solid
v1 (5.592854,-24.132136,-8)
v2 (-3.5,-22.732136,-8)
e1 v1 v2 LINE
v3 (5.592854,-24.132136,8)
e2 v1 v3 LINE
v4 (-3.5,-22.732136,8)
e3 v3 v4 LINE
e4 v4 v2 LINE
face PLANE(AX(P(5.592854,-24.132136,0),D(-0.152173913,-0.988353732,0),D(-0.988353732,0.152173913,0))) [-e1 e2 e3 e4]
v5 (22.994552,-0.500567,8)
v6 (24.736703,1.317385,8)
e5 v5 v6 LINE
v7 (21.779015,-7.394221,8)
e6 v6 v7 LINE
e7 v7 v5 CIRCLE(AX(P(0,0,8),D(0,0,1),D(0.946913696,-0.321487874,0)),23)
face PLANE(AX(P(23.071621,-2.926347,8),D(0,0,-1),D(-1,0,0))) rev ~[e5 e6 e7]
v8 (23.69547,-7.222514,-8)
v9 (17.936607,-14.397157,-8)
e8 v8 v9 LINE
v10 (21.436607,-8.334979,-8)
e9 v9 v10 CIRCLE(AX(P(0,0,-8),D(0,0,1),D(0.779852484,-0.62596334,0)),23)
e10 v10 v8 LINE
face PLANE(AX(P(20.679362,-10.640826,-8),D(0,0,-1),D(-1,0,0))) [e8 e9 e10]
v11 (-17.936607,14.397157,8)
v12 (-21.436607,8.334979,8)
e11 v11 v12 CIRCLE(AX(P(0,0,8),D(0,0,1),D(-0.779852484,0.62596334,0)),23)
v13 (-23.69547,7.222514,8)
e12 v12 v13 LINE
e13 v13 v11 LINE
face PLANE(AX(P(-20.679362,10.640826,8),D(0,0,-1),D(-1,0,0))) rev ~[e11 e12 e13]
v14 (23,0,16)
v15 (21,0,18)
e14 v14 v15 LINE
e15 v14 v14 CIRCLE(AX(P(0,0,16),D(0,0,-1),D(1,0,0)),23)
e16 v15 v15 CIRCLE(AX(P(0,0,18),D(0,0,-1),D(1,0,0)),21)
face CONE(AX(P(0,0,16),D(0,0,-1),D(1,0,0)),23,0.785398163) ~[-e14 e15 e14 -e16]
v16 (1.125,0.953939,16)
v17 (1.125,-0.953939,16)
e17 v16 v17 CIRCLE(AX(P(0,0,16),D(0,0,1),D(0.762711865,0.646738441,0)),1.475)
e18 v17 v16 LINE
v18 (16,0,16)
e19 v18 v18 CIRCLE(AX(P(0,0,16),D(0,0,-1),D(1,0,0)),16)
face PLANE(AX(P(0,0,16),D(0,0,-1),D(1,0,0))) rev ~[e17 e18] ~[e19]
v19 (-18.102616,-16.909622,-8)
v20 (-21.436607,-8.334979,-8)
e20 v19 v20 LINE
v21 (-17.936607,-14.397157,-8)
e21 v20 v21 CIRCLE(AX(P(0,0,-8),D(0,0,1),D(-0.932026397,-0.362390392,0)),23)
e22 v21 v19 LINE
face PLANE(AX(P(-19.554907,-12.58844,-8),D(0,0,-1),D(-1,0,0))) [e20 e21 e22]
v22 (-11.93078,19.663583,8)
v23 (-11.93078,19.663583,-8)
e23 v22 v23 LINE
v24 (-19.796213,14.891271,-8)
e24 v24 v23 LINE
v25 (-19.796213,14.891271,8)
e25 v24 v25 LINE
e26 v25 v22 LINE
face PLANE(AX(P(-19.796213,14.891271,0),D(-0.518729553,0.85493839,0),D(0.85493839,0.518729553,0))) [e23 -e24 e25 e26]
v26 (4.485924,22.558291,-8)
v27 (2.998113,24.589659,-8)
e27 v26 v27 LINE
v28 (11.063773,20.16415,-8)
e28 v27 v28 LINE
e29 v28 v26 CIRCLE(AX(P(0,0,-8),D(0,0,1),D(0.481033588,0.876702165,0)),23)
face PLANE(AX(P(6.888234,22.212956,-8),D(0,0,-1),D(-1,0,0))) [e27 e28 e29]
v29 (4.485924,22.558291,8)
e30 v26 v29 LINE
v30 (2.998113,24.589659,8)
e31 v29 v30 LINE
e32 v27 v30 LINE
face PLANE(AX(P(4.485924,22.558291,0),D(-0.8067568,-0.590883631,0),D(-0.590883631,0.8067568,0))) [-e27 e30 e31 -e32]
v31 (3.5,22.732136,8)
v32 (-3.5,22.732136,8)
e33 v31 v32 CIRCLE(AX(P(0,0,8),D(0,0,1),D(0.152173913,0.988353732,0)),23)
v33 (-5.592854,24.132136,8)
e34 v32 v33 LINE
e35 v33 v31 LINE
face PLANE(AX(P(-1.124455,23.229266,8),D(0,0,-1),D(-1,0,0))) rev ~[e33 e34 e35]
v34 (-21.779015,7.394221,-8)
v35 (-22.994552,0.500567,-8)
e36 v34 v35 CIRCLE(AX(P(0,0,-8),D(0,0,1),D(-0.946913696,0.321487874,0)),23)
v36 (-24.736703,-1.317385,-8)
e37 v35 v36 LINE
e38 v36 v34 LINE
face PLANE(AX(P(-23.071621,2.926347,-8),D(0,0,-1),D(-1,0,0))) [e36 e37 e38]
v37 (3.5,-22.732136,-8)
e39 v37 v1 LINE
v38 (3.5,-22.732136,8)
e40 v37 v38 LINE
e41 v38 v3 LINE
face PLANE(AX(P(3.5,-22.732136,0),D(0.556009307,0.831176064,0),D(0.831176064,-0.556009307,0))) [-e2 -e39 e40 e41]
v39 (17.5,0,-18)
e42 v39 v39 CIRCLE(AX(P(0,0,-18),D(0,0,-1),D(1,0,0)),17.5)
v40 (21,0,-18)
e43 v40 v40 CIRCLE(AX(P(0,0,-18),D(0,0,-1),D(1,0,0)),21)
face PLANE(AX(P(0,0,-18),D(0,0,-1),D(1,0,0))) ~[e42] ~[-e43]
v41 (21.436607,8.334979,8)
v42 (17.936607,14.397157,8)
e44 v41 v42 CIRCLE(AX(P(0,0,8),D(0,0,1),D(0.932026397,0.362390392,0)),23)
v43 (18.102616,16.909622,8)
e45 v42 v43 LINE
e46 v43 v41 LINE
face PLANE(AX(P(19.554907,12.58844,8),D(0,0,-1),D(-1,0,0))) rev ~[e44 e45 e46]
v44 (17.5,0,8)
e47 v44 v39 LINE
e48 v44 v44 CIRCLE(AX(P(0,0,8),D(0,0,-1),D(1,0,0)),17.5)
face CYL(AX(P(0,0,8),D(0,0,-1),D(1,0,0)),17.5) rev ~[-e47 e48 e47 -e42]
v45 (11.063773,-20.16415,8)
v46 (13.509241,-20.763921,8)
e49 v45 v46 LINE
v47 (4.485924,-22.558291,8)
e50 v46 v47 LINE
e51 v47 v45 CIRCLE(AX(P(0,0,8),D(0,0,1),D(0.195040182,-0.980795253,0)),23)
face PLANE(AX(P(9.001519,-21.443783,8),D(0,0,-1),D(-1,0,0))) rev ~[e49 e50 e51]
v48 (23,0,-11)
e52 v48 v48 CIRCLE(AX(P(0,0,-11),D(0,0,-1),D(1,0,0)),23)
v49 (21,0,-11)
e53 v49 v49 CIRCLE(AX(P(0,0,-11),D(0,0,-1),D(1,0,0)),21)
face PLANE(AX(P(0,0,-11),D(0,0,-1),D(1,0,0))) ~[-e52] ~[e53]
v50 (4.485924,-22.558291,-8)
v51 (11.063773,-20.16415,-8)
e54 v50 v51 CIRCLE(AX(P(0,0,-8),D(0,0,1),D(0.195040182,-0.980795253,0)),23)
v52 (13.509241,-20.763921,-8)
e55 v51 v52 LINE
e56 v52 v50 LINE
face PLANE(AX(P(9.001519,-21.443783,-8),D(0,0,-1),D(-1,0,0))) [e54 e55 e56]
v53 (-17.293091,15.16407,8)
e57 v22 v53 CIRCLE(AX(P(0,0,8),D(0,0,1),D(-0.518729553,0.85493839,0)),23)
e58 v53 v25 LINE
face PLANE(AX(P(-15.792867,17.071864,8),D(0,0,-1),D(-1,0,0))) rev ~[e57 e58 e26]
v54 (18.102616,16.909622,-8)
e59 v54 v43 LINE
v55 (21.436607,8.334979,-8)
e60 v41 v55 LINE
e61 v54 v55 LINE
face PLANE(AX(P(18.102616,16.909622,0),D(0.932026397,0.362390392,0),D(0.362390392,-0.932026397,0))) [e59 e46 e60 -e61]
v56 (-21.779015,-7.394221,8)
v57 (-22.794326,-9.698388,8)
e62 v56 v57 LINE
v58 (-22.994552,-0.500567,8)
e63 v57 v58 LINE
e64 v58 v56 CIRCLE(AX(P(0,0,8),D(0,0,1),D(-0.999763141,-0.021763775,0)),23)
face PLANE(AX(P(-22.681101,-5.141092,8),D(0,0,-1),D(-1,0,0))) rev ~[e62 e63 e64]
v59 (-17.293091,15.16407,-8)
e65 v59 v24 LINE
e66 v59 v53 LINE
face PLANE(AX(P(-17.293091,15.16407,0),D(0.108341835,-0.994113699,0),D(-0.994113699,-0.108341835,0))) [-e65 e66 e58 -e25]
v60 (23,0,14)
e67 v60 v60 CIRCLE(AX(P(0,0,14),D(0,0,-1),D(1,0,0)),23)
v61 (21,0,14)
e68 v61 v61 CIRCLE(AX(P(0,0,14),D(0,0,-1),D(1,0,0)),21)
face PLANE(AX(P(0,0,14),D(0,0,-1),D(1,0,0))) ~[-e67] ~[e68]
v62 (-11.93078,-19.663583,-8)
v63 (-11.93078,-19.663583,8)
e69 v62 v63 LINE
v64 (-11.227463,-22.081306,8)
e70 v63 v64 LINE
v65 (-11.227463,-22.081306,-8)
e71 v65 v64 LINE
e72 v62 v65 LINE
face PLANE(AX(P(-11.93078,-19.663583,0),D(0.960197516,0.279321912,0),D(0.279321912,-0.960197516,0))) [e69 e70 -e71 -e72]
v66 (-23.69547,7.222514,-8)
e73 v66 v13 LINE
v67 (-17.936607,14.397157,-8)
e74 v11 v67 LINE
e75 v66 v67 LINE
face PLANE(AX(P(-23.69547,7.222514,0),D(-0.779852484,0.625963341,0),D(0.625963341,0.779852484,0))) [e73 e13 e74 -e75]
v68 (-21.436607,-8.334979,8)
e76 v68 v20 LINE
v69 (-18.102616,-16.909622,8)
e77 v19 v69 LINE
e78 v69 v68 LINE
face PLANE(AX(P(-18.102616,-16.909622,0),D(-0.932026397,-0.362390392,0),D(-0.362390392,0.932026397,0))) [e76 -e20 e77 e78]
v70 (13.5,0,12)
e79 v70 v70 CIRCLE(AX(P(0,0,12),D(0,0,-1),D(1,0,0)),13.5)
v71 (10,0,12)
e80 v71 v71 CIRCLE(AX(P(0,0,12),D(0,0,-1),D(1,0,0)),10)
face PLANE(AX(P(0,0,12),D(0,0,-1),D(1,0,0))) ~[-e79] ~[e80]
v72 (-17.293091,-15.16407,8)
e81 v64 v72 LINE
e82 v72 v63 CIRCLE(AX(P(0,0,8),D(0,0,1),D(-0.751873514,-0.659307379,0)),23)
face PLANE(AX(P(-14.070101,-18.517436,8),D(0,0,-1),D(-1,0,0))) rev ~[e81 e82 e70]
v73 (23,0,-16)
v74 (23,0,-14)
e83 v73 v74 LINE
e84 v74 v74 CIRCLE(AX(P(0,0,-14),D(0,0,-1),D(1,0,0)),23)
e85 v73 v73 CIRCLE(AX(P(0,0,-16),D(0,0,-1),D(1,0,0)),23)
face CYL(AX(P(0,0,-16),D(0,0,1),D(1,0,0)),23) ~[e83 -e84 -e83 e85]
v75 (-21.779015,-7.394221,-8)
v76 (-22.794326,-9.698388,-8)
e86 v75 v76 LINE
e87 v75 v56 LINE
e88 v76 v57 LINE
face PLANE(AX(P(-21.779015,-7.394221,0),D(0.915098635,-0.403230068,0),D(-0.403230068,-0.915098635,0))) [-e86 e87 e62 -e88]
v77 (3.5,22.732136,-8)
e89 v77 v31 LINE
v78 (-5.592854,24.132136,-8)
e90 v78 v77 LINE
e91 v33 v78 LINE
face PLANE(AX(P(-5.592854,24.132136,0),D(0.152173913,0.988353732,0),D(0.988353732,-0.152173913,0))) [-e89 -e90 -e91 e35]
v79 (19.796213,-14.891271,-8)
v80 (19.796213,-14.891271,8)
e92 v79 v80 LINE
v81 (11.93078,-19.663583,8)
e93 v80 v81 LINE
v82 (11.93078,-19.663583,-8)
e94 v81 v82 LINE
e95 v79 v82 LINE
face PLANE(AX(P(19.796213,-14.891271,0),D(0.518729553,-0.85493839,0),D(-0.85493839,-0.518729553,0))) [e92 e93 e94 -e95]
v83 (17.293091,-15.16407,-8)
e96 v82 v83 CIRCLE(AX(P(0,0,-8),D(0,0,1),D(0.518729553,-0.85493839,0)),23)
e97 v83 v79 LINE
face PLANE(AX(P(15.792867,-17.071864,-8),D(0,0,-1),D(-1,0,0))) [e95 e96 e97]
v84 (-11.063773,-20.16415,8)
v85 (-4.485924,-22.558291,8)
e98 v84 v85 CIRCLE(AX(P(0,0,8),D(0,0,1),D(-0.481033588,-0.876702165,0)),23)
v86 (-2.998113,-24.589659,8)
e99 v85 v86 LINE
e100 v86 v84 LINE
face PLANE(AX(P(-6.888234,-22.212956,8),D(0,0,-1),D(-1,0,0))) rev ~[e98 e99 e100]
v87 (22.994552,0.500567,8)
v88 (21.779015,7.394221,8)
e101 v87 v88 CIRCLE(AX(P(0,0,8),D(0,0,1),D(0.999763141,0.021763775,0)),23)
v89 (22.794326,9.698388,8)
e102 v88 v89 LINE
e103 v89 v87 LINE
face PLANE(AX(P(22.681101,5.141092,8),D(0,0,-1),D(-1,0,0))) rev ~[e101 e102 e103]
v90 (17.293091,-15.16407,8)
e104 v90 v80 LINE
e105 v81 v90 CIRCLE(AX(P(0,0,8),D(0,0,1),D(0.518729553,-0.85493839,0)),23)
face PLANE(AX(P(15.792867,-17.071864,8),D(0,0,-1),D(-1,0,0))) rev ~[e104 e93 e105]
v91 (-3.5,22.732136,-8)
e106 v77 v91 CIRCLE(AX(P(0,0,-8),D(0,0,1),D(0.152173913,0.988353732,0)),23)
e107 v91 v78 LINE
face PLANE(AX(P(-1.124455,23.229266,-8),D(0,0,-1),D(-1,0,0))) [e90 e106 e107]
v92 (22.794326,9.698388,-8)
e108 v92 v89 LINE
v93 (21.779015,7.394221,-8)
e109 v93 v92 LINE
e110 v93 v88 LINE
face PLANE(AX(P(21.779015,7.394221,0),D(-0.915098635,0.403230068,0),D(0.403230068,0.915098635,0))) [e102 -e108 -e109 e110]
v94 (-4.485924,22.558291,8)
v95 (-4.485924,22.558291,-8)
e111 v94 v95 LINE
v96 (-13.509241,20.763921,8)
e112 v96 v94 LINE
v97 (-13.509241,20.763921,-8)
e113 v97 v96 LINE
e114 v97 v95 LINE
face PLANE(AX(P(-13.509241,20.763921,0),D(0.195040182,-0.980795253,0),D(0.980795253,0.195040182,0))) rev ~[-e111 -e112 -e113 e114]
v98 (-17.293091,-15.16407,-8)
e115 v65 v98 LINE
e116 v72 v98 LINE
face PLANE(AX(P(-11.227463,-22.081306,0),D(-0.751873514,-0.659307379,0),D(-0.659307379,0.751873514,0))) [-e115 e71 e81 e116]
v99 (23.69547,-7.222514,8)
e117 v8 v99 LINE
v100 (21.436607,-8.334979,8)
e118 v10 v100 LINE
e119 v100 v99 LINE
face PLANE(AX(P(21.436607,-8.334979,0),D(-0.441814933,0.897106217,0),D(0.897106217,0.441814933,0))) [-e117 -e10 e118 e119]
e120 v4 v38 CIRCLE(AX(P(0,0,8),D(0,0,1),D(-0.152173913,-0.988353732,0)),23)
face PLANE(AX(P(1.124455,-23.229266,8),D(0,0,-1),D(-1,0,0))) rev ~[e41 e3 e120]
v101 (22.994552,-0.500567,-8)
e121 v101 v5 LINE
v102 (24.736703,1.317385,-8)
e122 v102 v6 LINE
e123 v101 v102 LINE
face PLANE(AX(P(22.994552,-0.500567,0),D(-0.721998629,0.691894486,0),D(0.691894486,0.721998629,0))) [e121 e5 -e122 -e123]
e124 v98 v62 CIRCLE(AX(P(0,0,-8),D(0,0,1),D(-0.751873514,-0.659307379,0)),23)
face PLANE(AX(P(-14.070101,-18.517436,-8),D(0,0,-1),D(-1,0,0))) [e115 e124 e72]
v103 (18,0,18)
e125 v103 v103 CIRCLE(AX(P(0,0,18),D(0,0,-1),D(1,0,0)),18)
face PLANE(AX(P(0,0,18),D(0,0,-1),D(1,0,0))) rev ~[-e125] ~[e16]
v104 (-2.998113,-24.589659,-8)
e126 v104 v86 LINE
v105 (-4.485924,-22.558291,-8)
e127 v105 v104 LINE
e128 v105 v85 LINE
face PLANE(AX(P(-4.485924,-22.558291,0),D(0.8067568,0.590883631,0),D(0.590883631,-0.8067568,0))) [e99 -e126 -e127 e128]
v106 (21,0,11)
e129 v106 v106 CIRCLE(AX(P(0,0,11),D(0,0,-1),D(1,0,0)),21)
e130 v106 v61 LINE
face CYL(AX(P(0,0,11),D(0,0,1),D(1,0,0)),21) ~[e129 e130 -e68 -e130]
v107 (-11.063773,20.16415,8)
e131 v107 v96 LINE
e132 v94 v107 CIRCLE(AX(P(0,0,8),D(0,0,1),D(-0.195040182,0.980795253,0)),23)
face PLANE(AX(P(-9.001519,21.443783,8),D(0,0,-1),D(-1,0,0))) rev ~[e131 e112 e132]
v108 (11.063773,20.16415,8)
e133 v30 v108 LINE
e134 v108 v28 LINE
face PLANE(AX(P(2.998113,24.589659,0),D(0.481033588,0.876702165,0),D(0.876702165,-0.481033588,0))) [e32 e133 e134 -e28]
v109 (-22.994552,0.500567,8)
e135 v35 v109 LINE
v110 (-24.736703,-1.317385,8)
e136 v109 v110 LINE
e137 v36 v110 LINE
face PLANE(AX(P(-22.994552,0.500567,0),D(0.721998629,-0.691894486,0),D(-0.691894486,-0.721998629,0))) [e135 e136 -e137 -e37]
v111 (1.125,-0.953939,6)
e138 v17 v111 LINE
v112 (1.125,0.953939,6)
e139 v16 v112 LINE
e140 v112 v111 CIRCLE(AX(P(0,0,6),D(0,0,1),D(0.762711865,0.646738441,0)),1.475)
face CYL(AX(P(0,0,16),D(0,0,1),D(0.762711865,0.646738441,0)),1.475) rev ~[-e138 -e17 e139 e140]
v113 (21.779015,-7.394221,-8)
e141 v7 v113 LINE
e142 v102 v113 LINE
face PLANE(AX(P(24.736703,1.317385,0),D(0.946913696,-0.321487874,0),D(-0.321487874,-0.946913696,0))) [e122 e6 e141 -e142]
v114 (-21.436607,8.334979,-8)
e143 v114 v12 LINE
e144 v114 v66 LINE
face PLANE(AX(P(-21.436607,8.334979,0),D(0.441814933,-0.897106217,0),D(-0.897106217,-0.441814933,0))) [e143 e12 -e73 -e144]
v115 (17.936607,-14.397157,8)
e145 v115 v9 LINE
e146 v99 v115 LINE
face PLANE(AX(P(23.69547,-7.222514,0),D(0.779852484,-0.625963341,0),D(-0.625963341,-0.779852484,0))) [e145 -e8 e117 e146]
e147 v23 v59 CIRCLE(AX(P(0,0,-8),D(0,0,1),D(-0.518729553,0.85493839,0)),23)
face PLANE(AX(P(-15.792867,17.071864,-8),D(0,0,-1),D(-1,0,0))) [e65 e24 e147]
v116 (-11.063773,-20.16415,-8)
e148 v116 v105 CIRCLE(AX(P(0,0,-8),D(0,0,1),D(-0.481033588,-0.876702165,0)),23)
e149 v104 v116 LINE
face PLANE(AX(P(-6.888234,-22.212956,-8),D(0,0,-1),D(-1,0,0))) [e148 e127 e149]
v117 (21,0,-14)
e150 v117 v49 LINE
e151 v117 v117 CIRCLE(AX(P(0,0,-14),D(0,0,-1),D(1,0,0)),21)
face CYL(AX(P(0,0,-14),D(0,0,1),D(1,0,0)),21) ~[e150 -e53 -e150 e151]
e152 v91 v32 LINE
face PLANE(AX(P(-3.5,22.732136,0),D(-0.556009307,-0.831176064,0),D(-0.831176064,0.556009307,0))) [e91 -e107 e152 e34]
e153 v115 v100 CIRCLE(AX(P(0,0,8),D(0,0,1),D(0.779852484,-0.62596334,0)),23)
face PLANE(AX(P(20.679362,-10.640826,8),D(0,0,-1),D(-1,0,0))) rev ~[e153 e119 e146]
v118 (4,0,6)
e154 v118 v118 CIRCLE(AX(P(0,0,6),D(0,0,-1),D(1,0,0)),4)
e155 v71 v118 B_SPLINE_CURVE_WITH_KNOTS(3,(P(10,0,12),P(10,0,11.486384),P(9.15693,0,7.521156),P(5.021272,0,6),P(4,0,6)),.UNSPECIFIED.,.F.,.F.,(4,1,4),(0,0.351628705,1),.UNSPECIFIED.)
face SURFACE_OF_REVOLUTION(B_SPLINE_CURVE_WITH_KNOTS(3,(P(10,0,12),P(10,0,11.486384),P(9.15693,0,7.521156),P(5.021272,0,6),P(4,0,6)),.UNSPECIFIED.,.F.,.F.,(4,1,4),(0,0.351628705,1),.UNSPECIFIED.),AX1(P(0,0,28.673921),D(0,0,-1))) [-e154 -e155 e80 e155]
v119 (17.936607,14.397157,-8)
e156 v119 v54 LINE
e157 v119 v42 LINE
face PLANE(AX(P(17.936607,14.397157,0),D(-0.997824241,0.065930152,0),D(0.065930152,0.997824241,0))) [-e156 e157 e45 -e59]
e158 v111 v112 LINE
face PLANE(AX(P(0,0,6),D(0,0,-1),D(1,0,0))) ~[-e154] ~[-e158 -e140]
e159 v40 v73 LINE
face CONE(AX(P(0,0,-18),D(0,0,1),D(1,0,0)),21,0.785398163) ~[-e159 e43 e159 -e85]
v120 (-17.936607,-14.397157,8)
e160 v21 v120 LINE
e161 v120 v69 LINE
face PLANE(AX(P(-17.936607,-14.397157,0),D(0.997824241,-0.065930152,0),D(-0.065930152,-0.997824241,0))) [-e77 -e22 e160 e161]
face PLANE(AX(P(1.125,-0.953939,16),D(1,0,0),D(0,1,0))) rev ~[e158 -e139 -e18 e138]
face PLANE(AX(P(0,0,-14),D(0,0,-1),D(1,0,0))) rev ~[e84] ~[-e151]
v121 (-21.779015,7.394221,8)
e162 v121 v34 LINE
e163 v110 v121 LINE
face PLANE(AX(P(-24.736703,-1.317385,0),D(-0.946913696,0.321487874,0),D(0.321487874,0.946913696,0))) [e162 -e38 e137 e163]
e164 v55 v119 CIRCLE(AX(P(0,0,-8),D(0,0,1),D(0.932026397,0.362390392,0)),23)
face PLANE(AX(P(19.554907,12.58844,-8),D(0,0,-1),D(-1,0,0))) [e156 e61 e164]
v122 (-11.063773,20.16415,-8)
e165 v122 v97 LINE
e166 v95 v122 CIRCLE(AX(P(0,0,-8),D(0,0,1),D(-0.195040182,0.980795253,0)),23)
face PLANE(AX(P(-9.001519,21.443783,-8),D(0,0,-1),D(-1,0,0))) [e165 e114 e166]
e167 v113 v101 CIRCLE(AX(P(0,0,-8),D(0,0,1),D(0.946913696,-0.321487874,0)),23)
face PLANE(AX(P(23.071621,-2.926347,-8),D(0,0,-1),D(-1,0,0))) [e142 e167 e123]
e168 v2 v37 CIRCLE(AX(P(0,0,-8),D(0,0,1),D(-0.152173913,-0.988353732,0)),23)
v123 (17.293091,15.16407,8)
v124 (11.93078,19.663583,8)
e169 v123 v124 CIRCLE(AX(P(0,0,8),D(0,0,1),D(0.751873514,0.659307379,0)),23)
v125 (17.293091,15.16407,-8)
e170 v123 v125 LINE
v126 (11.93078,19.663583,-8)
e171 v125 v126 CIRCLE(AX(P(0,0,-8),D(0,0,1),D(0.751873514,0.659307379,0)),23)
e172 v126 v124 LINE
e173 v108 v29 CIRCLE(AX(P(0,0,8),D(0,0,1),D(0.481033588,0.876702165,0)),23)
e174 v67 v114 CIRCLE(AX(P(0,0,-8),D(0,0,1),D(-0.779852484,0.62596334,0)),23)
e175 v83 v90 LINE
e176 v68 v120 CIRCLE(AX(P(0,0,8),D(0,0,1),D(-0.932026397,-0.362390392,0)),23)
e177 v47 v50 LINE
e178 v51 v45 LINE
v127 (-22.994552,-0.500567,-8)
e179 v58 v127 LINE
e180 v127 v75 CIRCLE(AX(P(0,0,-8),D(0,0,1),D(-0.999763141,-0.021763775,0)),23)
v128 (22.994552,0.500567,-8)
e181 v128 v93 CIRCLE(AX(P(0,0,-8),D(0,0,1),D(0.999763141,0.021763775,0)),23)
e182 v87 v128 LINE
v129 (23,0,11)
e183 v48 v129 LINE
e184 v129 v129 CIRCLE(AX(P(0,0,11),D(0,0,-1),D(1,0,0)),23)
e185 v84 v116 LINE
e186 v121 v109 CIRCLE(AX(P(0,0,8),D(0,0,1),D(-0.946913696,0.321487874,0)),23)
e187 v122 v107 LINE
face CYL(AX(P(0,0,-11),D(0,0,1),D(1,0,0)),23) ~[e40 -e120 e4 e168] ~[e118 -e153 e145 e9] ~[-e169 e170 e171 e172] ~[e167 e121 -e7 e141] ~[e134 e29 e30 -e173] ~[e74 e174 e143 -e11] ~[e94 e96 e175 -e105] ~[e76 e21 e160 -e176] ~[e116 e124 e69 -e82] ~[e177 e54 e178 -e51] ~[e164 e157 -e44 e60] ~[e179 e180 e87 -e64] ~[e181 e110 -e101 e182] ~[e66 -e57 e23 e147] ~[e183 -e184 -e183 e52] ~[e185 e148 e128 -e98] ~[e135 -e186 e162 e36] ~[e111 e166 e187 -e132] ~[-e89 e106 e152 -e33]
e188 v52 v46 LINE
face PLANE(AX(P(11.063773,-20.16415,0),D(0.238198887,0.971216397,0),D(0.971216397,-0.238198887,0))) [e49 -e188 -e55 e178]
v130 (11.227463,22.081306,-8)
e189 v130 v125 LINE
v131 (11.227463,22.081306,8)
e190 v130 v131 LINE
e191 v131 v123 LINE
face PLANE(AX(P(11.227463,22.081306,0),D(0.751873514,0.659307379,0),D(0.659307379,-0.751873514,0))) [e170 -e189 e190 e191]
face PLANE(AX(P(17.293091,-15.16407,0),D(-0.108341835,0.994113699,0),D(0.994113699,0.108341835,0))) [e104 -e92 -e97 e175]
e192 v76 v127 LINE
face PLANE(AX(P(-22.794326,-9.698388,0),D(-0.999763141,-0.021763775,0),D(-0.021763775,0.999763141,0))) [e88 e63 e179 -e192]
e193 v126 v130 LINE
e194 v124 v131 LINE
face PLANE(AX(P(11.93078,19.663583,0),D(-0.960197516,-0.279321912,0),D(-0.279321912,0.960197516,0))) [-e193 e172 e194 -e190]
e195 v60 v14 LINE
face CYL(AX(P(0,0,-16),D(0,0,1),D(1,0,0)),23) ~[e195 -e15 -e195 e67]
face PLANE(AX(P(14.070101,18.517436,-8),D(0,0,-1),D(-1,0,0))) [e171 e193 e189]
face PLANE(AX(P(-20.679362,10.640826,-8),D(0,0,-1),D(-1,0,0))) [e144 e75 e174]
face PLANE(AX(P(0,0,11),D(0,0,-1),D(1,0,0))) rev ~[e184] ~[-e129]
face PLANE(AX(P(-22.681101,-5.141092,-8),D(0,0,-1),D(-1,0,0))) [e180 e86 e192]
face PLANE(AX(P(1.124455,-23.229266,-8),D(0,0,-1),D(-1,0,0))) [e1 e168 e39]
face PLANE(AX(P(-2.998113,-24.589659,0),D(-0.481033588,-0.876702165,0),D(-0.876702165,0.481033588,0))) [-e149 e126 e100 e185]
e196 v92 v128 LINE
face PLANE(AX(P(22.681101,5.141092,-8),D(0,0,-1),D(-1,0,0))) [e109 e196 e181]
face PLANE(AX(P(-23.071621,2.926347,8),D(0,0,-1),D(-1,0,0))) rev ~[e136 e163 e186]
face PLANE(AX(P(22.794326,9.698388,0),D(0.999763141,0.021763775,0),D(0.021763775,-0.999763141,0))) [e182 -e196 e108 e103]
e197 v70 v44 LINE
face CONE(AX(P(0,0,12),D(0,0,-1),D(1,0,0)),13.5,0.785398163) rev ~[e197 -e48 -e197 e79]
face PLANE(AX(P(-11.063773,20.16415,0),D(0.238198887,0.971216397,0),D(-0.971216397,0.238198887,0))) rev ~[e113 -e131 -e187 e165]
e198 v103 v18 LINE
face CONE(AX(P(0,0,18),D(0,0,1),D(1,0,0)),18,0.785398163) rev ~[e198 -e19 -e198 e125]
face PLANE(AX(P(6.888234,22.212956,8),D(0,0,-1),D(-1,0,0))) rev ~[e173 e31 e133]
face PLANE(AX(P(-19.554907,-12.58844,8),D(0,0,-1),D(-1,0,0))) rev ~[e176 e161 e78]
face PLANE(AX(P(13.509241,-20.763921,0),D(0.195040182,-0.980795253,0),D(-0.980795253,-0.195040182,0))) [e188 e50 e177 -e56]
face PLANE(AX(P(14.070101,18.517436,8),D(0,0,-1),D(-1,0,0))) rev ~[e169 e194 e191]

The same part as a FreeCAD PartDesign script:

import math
import FreeCAD as App
import Part
import Sketcher
Q = App.Units.Quantity

doc = App.newDocument("Part")
body = doc.addObject("PartDesign::Body", "Body")

# Sketch on YZ plane
sketch1 = body.newObject("Sketcher::SketchObject", "Sketch")
sketch1.AttachmentSupport = (doc.getObject("YZ_Plane"), [""])
sketch1.MapMode = "FlatFace"
sketch1.addGeometry([
    Part.LineSegment(App.Vector(23, 16, 0), App.Vector(21, 18, 0)),  # 0
    Part.LineSegment(App.Vector(21, 18, 0), App.Vector(18, 18, 0)),  # 1
    Part.LineSegment(App.Vector(18, 18, 0), App.Vector(16, 16, 0)),  # 2
    Part.LineSegment(App.Vector(16, 16, 0), App.Vector(0, 16, 0)),  # 3
    Part.LineSegment(App.Vector(0, 16, 0), App.Vector(0, 6, 0)),  # 4
    Part.LineSegment(App.Vector(0, 6, 0), App.Vector(4, 6, 0)),  # 5
    Part.BSplineCurve([App.Vector(10, 12, 0), App.Vector(10, 11.486384, 0), App.Vector(9.15693, 7.521156, 0), App.Vector(5.021272, 6, 0), App.Vector(4, 6, 0)], [4, 1, 4], [0, 0.351628705, 1], False, 3, [1, 1, 1, 1, 1], False),  # 6
    Part.LineSegment(App.Vector(10, 12, 0), App.Vector(13.5, 12, 0)),  # 7
    Part.LineSegment(App.Vector(13.5, 12, 0), App.Vector(17.5, 8, 0)),  # 8
    Part.LineSegment(App.Vector(17.5, 8, 0), App.Vector(17.5, -18, 0)),  # 9
    Part.LineSegment(App.Vector(17.5, -18, 0), App.Vector(21, -18, 0)),  # 10
    Part.LineSegment(App.Vector(21, -18, 0), App.Vector(23, -16, 0)),  # 11
    Part.LineSegment(App.Vector(23, -16, 0), App.Vector(23, 16, 0)),  # 12
], False)
sketch1.addConstraint([
    Sketcher.Constraint("Block", 6),
    Sketcher.Constraint("Coincident", 0, 2, 1, 1),
    Sketcher.Constraint("Coincident", 1, 2, 2, 1),
    Sketcher.Constraint("Coincident", 2, 2, 3, 1),
    Sketcher.Constraint("Coincident", 3, 2, 4, 1),
    Sketcher.Constraint("Coincident", 4, 2, 5, 1),
    Sketcher.Constraint("Coincident", 5, 2, 6, 2),
    Sketcher.Constraint("Coincident", 6, 1, 7, 1),
    Sketcher.Constraint("Coincident", 7, 2, 8, 1),
    Sketcher.Constraint("Coincident", 8, 2, 9, 1),
    Sketcher.Constraint("Coincident", 9, 2, 10, 1),
    Sketcher.Constraint("Coincident", 10, 2, 11, 1),
    Sketcher.Constraint("Coincident", 11, 2, 12, 1),
    Sketcher.Constraint("Coincident", 12, 2, 0, 1),
    Sketcher.Constraint("Horizontal", 1),
    Sketcher.Constraint("Horizontal", 3),
    Sketcher.Constraint("Vertical", 4),
    Sketcher.Constraint("Horizontal", 5),
    Sketcher.Constraint("Horizontal", 7),
    Sketcher.Constraint("Vertical", 9),
    Sketcher.Constraint("Horizontal", 10),
    Sketcher.Constraint("Vertical", 12),
    Sketcher.Constraint("Symmetric", 0, 2, 10, 2, -1),
    Sketcher.Constraint("PointOnObject", 3, 2, -2),
    Sketcher.Constraint("Perpendicular", 0, 2),
    Sketcher.Constraint("Perpendicular", 2, 8),
    Sketcher.Constraint("Perpendicular", 8, 11),
    Sketcher.Constraint("Horizontal", 3, 2, 12, 2),
    Sketcher.Constraint("Equal", 7, 10),
    Sketcher.Constraint("Equal", 0, 2),
    Sketcher.Constraint("DistanceX", 1, 2, 1, 1, Q("3 mm")),
    Sketcher.Constraint("DistanceX", 3, 2, 3, 1, Q("16 mm")),
    Sketcher.Constraint("DistanceY", 4, 2, 4, 1, Q("10 mm")),
    Sketcher.Constraint("DistanceY", 9, 2, 9, 1, Q("26 mm")),
    Sketcher.Constraint("DistanceX", -1, 1, 0, 2, Q("21 mm")),
])
revolution = body.newObject("PartDesign::Revolution", "Revolution")
revolution.Profile = sketch1
revolution.ReferenceAxis = (sketch1, ["V_Axis"])
revolution.Angle = 360

# Sketch on XY plane
sketch2 = body.newObject("Sketcher::SketchObject", "Sketch001")
sketch2.AttachmentSupport = (doc.getObject("XY_Plane"), [""])
sketch2.MapMode = "FlatFace"
sketch2.AttachmentOffset = App.Placement(App.Vector(0, 0, 16), App.Rotation())
sketch2.addGeometry([
    Part.LineSegment(App.Vector(1.1, -1, 0), App.Vector(1.1, 1, 0)),
    Part.ArcOfCircle(Part.Circle(App.Vector(0, 0, 0), App.Vector(0, 0, 1), 1.5), math.radians(40), math.radians(320)),
], False)
sketch2.addConstraint([
    Sketcher.Constraint("Coincident", 0, 1, 1, 2),
    Sketcher.Constraint("Coincident", 1, 1, 0, 2),
    Sketcher.Constraint("Vertical", 0),
    Sketcher.Constraint("Coincident", 1, 3, -1, 1),
    Sketcher.Constraint("Radius", 1, Q("1.475 mm")),
    Sketcher.Constraint("DistanceX", -1, 1, 0, 1, Q("1.125 mm")),
])
pocket1 = body.newObject("PartDesign::Pocket", "Pocket")
pocket1.Profile = sketch2
pocket1.Type = "ThroughAll"

# Sketch on YZ plane
sketch3 = body.newObject("Sketcher::SketchObject", "Sketch002")
sketch3.AttachmentSupport = (doc.getObject("YZ_Plane"), [""])
sketch3.MapMode = "FlatFace"
sketch3.addGeometry([
    Part.LineSegment(App.Vector(23, -16, 0), App.Vector(21, -18, 0)),  # 0
    Part.LineSegment(App.Vector(21, -18, 0), App.Vector(24.3, -18, 0)),  # 1
    Part.LineSegment(App.Vector(24.3, -18, 0), App.Vector(24.3, 18, 0)),  # 2
    Part.LineSegment(App.Vector(24.3, 18, 0), App.Vector(21, 18, 0)),  # 3
    Part.LineSegment(App.Vector(21, 18, 0), App.Vector(23, 16, 0)),  # 4
    Part.LineSegment(App.Vector(23, 16, 0), App.Vector(23, 14, 0)),  # 5
    Part.LineSegment(App.Vector(23, 14, 0), App.Vector(21, 14, 0)),  # 6
    Part.LineSegment(App.Vector(21, 14, 0), App.Vector(21, 11, 0)),  # 7
    Part.LineSegment(App.Vector(21, 11, 0), App.Vector(23, 11, 0)),  # 8
    Part.LineSegment(App.Vector(23, 11, 0), App.Vector(23, -11, 0)),  # 9
    Part.LineSegment(App.Vector(23, -11, 0), App.Vector(21, -11, 0)),  # 10
    Part.LineSegment(App.Vector(21, -11, 0), App.Vector(21, -14, 0)),  # 11
    Part.LineSegment(App.Vector(21, -14, 0), App.Vector(23, -14, 0)),  # 12
    Part.LineSegment(App.Vector(23, -14, 0), App.Vector(23, -16, 0)),  # 13
], False)
sketch3.addConstraint([
    Sketcher.Constraint("Coincident", 0, 2, 1, 1),
    Sketcher.Constraint("Coincident", 1, 2, 2, 1),
    Sketcher.Constraint("Coincident", 2, 2, 3, 1),
    Sketcher.Constraint("Coincident", 3, 2, 4, 1),
    Sketcher.Constraint("Coincident", 4, 2, 5, 1),
    Sketcher.Constraint("Coincident", 5, 2, 6, 1),
    Sketcher.Constraint("Coincident", 6, 2, 7, 1),
    Sketcher.Constraint("Coincident", 7, 2, 8, 1),
    Sketcher.Constraint("Coincident", 8, 2, 9, 1),
    Sketcher.Constraint("Coincident", 9, 2, 10, 1),
    Sketcher.Constraint("Coincident", 10, 2, 11, 1),
    Sketcher.Constraint("Coincident", 11, 2, 12, 1),
    Sketcher.Constraint("Coincident", 12, 2, 13, 1),
    Sketcher.Constraint("Coincident", 13, 2, 0, 1),
    Sketcher.Constraint("Horizontal", 1),
    Sketcher.Constraint("Vertical", 2),
    Sketcher.Constraint("Horizontal", 3),
    Sketcher.Constraint("Vertical", 5),
    Sketcher.Constraint("Horizontal", 6),
    Sketcher.Constraint("Vertical", 7),
    Sketcher.Constraint("Horizontal", 8),
    Sketcher.Constraint("Vertical", 9),
    Sketcher.Constraint("Horizontal", 10),
    Sketcher.Constraint("Vertical", 11),
    Sketcher.Constraint("Horizontal", 12),
    Sketcher.Constraint("Vertical", 13),
    Sketcher.Constraint("Symmetric", 0, 2, 3, 2, -1),
    Sketcher.Constraint("Symmetric", 7, 2, 10, 2, -1),
    Sketcher.Constraint("Symmetric", 5, 2, 12, 2, -1),
    Sketcher.Constraint("Perpendicular", 0, 4),
    Sketcher.Constraint("Vertical", 3, 2, 6, 2),
    Sketcher.Constraint("Vertical", 5, 2, 8, 2),
    Sketcher.Constraint("Equal", 12, 5),
    Sketcher.Constraint("Equal", 5, 13),
    Sketcher.Constraint("DistanceX", 6, 2, 6, 1, Q("2 mm")),
    Sketcher.Constraint("DistanceY", 2, 1, 2, 2, Q("36 mm")),
    Sketcher.Constraint("DistanceY", 7, 2, 7, 1, Q("3 mm")),
    Sketcher.Constraint("DistanceX", -1, 1, 0, 2, Q("21 mm")),
    Sketcher.Constraint("DistanceX", 1, 1, 1, 2, Q("3.334722 mm")),
])
groove = body.newObject("PartDesign::Groove", "Groove")
groove.Profile = sketch3
groove.ReferenceAxis = (sketch3, ["V_Axis"])
groove.Angle = 360

# Sketch on XY plane
sketch4 = body.newObject("Sketcher::SketchObject", "Sketch003")
sketch4.AttachmentSupport = (doc.getObject("XY_Plane"), [""])
sketch4.MapMode = "FlatFace"
sketch4.addGeometry([
    Part.LineSegment(App.Vector(-5.6, 24.1, 0), App.Vector(-3.5, 22.7, 0)),  # 0
    Part.ArcOfCircle(Part.Circle(App.Vector(0, 0, 0), App.Vector(0, 0, 1), 23), math.radians(81.25), math.radians(98.75)),  # 1
    Part.LineSegment(App.Vector(3.5, 22.7, 0), App.Vector(-5.6, 24.1, 0)),  # 2
    Part.LineSegment(App.Vector(11.1, 20.2, 0), App.Vector(3, 24.6, 0)),  # 3
    Part.LineSegment(App.Vector(3, 24.6, 0), App.Vector(4.5, 22.6, 0)),  # 4
    Part.ArcOfCircle(Part.Circle(App.Vector(0, 0, 0), App.Vector(0, 0, 1), 23), math.radians(61.25), math.radians(78.75)),  # 5
    Part.LineSegment(App.Vector(17.3, 15.2, 0), App.Vector(11.2, 22.1, 0)),  # 6
    Part.LineSegment(App.Vector(11.2, 22.1, 0), App.Vector(11.9, 19.7, 0)),  # 7
    Part.ArcOfCircle(Part.Circle(App.Vector(0, 0, 0), App.Vector(0, 0, 1), 23), math.radians(41.25), math.radians(58.75)),  # 8
    Part.LineSegment(App.Vector(21.4, 8.3, 0), App.Vector(18.1, 16.9, 0)),  # 9
    Part.LineSegment(App.Vector(18.1, 16.9, 0), App.Vector(17.9, 14.4, 0)),  # 10
    Part.ArcOfCircle(Part.Circle(App.Vector(0, 0, 0), App.Vector(0, 0, 1), 23), math.radians(21.25), math.radians(38.75)),  # 11
    Part.LineSegment(App.Vector(23, 0.5, 0), App.Vector(22.8, 9.7, 0)),  # 12
    Part.LineSegment(App.Vector(22.8, 9.7, 0), App.Vector(21.8, 7.4, 0)),  # 13
    Part.ArcOfCircle(Part.Circle(App.Vector(0, 0, 0), App.Vector(0, 0, 1), 23), math.radians(1.25), math.radians(18.75)),  # 14
    Part.LineSegment(App.Vector(21.8, -7.4, 0), App.Vector(24.7, 1.3, 0)),  # 15
    Part.LineSegment(App.Vector(24.7, 1.3, 0), App.Vector(23, -0.5, 0)),  # 16
    Part.ArcOfCircle(Part.Circle(App.Vector(0, 0, 0), App.Vector(0, 0, 1), 23), math.radians(-18.75), math.radians(-1.25)),  # 17
    Part.LineSegment(App.Vector(17.9, -14.4, 0), App.Vector(23.7, -7.2, 0)),  # 18
    Part.LineSegment(App.Vector(23.7, -7.2, 0), App.Vector(21.4, -8.3, 0)),  # 19
    Part.ArcOfCircle(Part.Circle(App.Vector(0, 0, 0), App.Vector(0, 0, 1), 23), math.radians(-38.75), math.radians(-21.25)),  # 20
    Part.LineSegment(App.Vector(11.9, -19.7, 0), App.Vector(19.8, -14.9, 0)),  # 21
    Part.LineSegment(App.Vector(19.8, -14.9, 0), App.Vector(17.3, -15.2, 0)),  # 22
    Part.ArcOfCircle(Part.Circle(App.Vector(0, 0, 0), App.Vector(0, 0, 1), 23), math.radians(-58.75), math.radians(-41.25)),  # 23
    Part.LineSegment(App.Vector(4.5, -22.6, 0), App.Vector(13.5, -20.8, 0)),  # 24
    Part.LineSegment(App.Vector(13.5, -20.8, 0), App.Vector(11.1, -20.2, 0)),  # 25
    Part.ArcOfCircle(Part.Circle(App.Vector(0, 0, 0), App.Vector(0, 0, 1), 23), math.radians(-78.75), math.radians(-61.25)),  # 26
    Part.LineSegment(App.Vector(-3.5, -22.7, 0), App.Vector(5.6, -24.1, 0)),  # 27
    Part.LineSegment(App.Vector(5.6, -24.1, 0), App.Vector(3.5, -22.7, 0)),  # 28
    Part.ArcOfCircle(Part.Circle(App.Vector(0, 0, 0), App.Vector(0, 0, 1), 23), math.radians(-98.75), math.radians(-81.25)),  # 29
    Part.LineSegment(App.Vector(-11.1, -20.2, 0), App.Vector(-3, -24.6, 0)),  # 30
    Part.LineSegment(App.Vector(-3, -24.6, 0), App.Vector(-4.5, -22.6, 0)),  # 31
    Part.ArcOfCircle(Part.Circle(App.Vector(0, 0, 0), App.Vector(0, 0, 1), 23), math.radians(-118.75), math.radians(-101.25)),  # 32
    Part.LineSegment(App.Vector(-17.3, -15.2, 0), App.Vector(-11.2, -22.1, 0)),  # 33
    Part.LineSegment(App.Vector(-11.2, -22.1, 0), App.Vector(-11.9, -19.7, 0)),  # 34
    Part.ArcOfCircle(Part.Circle(App.Vector(0, 0, 0), App.Vector(0, 0, 1), 23), math.radians(-138.75), math.radians(-121.25)),  # 35
    Part.LineSegment(App.Vector(-21.4, -8.3, 0), App.Vector(-18.1, -16.9, 0)),  # 36
    Part.LineSegment(App.Vector(-18.1, -16.9, 0), App.Vector(-17.9, -14.4, 0)),  # 37
    Part.ArcOfCircle(Part.Circle(App.Vector(0, 0, 0), App.Vector(0, 0, 1), 23), math.radians(-158.75), math.radians(-141.25)),  # 38
    Part.LineSegment(App.Vector(-23, -0.5, 0), App.Vector(-22.8, -9.7, 0)),  # 39
    Part.LineSegment(App.Vector(-22.8, -9.7, 0), App.Vector(-21.8, -7.4, 0)),  # 40
    Part.ArcOfCircle(Part.Circle(App.Vector(0, 0, 0), App.Vector(0, 0, 1), 23), math.radians(-178.75), math.radians(-161.25)),  # 41
    Part.LineSegment(App.Vector(-21.8, 7.4, 0), App.Vector(-24.7, -1.3, 0)),  # 42
    Part.LineSegment(App.Vector(-24.7, -1.3, 0), App.Vector(-23, 0.5, 0)),  # 43
    Part.ArcOfCircle(Part.Circle(App.Vector(0, 0, 0), App.Vector(0, 0, 1), 23), math.radians(161.25), math.radians(178.75)),  # 44
    Part.LineSegment(App.Vector(-17.9, 14.4, 0), App.Vector(-23.7, 7.2, 0)),  # 45
    Part.LineSegment(App.Vector(-23.7, 7.2, 0), App.Vector(-21.4, 8.3, 0)),  # 46
    Part.ArcOfCircle(Part.Circle(App.Vector(0, 0, 0), App.Vector(0, 0, 1), 23), math.radians(141.25), math.radians(158.75)),  # 47
    Part.LineSegment(App.Vector(-11.9, 19.7, 0), App.Vector(-19.8, 14.9, 0)),  # 48
    Part.LineSegment(App.Vector(-19.8, 14.9, 0), App.Vector(-17.3, 15.2, 0)),  # 49
    Part.ArcOfCircle(Part.Circle(App.Vector(0, 0, 0), App.Vector(0, 0, 1), 23), math.radians(121.25), math.radians(138.75)),  # 50
    Part.LineSegment(App.Vector(-4.5, 22.6, 0), App.Vector(-13.5, 20.8, 0)),  # 51
    Part.LineSegment(App.Vector(-13.5, 20.8, 0), App.Vector(-11.1, 20.2, 0)),  # 52
    Part.ArcOfCircle(Part.Circle(App.Vector(0, 0, 0), App.Vector(0, 0, 1), 23), math.radians(101.25), math.radians(118.75)),  # 53
], False)
sketch4.addConstraint([
    Sketcher.Constraint("Coincident", 0, 2, 1, 2),
    Sketcher.Constraint("Tangent", 1, 1, 2, 1),
    Sketcher.Constraint("Coincident", 2, 2, 0, 1),
    Sketcher.Constraint("Coincident", 3, 2, 4, 1),
    Sketcher.Constraint("Coincident", 4, 2, 5, 2),
    Sketcher.Constraint("Tangent", 5, 1, 3, 1),
    Sketcher.Constraint("Coincident", 6, 2, 7, 1),
    Sketcher.Constraint("Coincident", 7, 2, 8, 2),
    Sketcher.Constraint("Tangent", 8, 1, 6, 1),
    Sketcher.Constraint("Coincident", 9, 2, 10, 1),
    Sketcher.Constraint("Coincident", 10, 2, 11, 2),
    Sketcher.Constraint("Tangent", 11, 1, 9, 1),
    Sketcher.Constraint("Coincident", 12, 2, 13, 1),
    Sketcher.Constraint("Coincident", 13, 2, 14, 2),
    Sketcher.Constraint("Tangent", 14, 1, 12, 1),
    Sketcher.Constraint("Coincident", 15, 2, 16, 1),
    Sketcher.Constraint("Coincident", 16, 2, 17, 2),
    Sketcher.Constraint("Tangent", 17, 1, 15, 1),
    Sketcher.Constraint("Coincident", 18, 2, 19, 1),
    Sketcher.Constraint("Coincident", 19, 2, 20, 2),
    Sketcher.Constraint("Tangent", 20, 1, 18, 1),
    Sketcher.Constraint("Coincident", 21, 2, 22, 1),
    Sketcher.Constraint("Coincident", 22, 2, 23, 2),
    Sketcher.Constraint("Tangent", 23, 1, 21, 1),
    Sketcher.Constraint("Coincident", 24, 2, 25, 1),
    Sketcher.Constraint("Coincident", 25, 2, 26, 2),
    Sketcher.Constraint("Tangent", 26, 1, 24, 1),
    Sketcher.Constraint("Coincident", 27, 2, 28, 1),
    Sketcher.Constraint("Coincident", 28, 2, 29, 2),
    Sketcher.Constraint("Tangent", 29, 1, 27, 1),
    Sketcher.Constraint("Coincident", 30, 2, 31, 1),
    Sketcher.Constraint("Coincident", 31, 2, 32, 2),
    Sketcher.Constraint("Tangent", 32, 1, 30, 1),
    Sketcher.Constraint("Coincident", 33, 2, 34, 1),
    Sketcher.Constraint("Coincident", 34, 2, 35, 2),
    Sketcher.Constraint("Tangent", 35, 1, 33, 1),
    Sketcher.Constraint("Coincident", 36, 2, 37, 1),
    Sketcher.Constraint("Coincident", 37, 2, 38, 2),
    Sketcher.Constraint("Tangent", 38, 1, 36, 1),
    Sketcher.Constraint("Coincident", 39, 2, 40, 1),
    Sketcher.Constraint("Coincident", 40, 2, 41, 2),
    Sketcher.Constraint("Tangent", 41, 1, 39, 1),
    Sketcher.Constraint("Coincident", 42, 2, 43, 1),
    Sketcher.Constraint("Coincident", 43, 2, 44, 2),
    Sketcher.Constraint("Tangent", 44, 1, 42, 1),
    Sketcher.Constraint("Coincident", 45, 2, 46, 1),
    Sketcher.Constraint("Coincident", 46, 2, 47, 2),
    Sketcher.Constraint("Tangent", 47, 1, 45, 1),
    Sketcher.Constraint("Coincident", 48, 2, 49, 1),
    Sketcher.Constraint("Coincident", 49, 2, 50, 2),
    Sketcher.Constraint("Tangent", 50, 1, 48, 1),
    Sketcher.Constraint("Coincident", 51, 2, 52, 1),
    Sketcher.Constraint("Coincident", 52, 2, 53, 2),
    Sketcher.Constraint("Tangent", 53, 1, 51, 1),
    Sketcher.Constraint("Coincident", 1, 3, -1, 1),
    Sketcher.Constraint("Coincident", 5, 3, -1, 1),
    Sketcher.Constraint("Coincident", 8, 3, -1, 1),
    Sketcher.Constraint("Coincident", 11, 3, -1, 1),
    Sketcher.Constraint("Coincident", 14, 3, -1, 1),
    Sketcher.Constraint("Coincident", 17, 3, -1, 1),
    Sketcher.Constraint("Coincident", 20, 3, -1, 1),
    Sketcher.Constraint("Coincident", 23, 3, -1, 1),
    Sketcher.Constraint("Coincident", 26, 3, -1, 1),
    Sketcher.Constraint("Coincident", 29, 3, -1, 1),
    Sketcher.Constraint("Coincident", 32, 3, -1, 1),
    Sketcher.Constraint("Coincident", 35, 3, -1, 1),
    Sketcher.Constraint("Coincident", 38, 3, -1, 1),
    Sketcher.Constraint("Coincident", 41, 3, -1, 1),
    Sketcher.Constraint("Coincident", 44, 3, -1, 1),
    Sketcher.Constraint("Coincident", 47, 3, -1, 1),
    Sketcher.Constraint("Coincident", 50, 3, -1, 1),
    Sketcher.Constraint("Coincident", 53, 3, -1, 1),
    Sketcher.Constraint("Equal", 1, 5),
    Sketcher.Constraint("Equal", 5, 8),
    Sketcher.Constraint("Equal", 8, 11),
    Sketcher.Constraint("Equal", 11, 14),
    Sketcher.Constraint("Equal", 14, 17),
    Sketcher.Constraint("Equal", 17, 20),
    Sketcher.Constraint("Equal", 20, 23),
    Sketcher.Constraint("Equal", 23, 26),
    Sketcher.Constraint("Equal", 26, 29),
    Sketcher.Constraint("Equal", 29, 32),
    Sketcher.Constraint("Equal", 32, 35),
    Sketcher.Constraint("Equal", 35, 38),
    Sketcher.Constraint("Equal", 38, 41),
    Sketcher.Constraint("Equal", 41, 44),
    Sketcher.Constraint("Equal", 44, 47),
    Sketcher.Constraint("Equal", 47, 50),
    Sketcher.Constraint("Equal", 50, 53),
    Sketcher.Constraint("Symmetric", 2, 2, 27, 2, -1, 1),
    Sketcher.Constraint("Symmetric", 3, 2, 30, 2, -1, 1),
    Sketcher.Constraint("Symmetric", 6, 2, 33, 2, -1, 1),
    Sketcher.Constraint("Symmetric", 9, 2, 36, 2, -1, 1),
    Sketcher.Constraint("Symmetric", 12, 2, 39, 2, -1, 1),
    Sketcher.Constraint("Symmetric", 15, 2, 42, 2, -1, 1),
    Sketcher.Constraint("Symmetric", 18, 2, 45, 2, -1, 1),
    Sketcher.Constraint("Symmetric", 21, 2, 48, 2, -1, 1),
    Sketcher.Constraint("Symmetric", 24, 2, 51, 2, -1, 1),
    Sketcher.Constraint("Parallel", 0, 28),
    Sketcher.Constraint("Parallel", 4, 31),
    Sketcher.Constraint("Parallel", 7, 34),
    Sketcher.Constraint("Parallel", 10, 37),
    Sketcher.Constraint("Parallel", 13, 40),
    Sketcher.Constraint("Parallel", 16, 43),
    Sketcher.Constraint("Parallel", 19, 46),
    Sketcher.Constraint("Parallel", 22, 49),
    Sketcher.Constraint("Parallel", 25, 52),
    Sketcher.Constraint("Horizontal", 0, 2, 1, 1),
    Sketcher.Constraint("Horizontal", 26, 1, 31, 2),
    Sketcher.Constraint("Horizontal", 25, 2, 32, 1),
    Sketcher.Constraint("Horizontal", 23, 1, 34, 2),
    Sketcher.Constraint("Horizontal", 22, 2, 35, 1),
    Sketcher.Constraint("Horizontal", 20, 1, 37, 2),
    Sketcher.Constraint("Horizontal", 19, 2, 38, 1),
    Sketcher.Constraint("Horizontal", 17, 1, 40, 2),
    Sketcher.Constraint("Horizontal", 16, 2, 41, 1),
    Sketcher.Constraint("Equal", 2, 3),
    Sketcher.Constraint("Equal", 0, 4),
    Sketcher.Constraint("Equal", 3, 6),
    Sketcher.Constraint("Equal", 4, 7),
    Sketcher.Constraint("Equal", 6, 9),
    Sketcher.Constraint("Equal", 7, 10),
    Sketcher.Constraint("Equal", 9, 12),
    Sketcher.Constraint("Equal", 10, 13),
    Sketcher.Constraint("Equal", 12, 15),
    Sketcher.Constraint("Equal", 15, 18),
    Sketcher.Constraint("Equal", 18, 21),
    Sketcher.Constraint("Equal", 21, 24),
    Sketcher.Constraint("Radius", 1, Q("23 mm")),
    Sketcher.Constraint("Distance", 2, Q("9.2 mm")),
    Sketcher.Constraint("DistanceX", 0, 2, -1, 1, Q("3.5 mm")),
    Sketcher.Constraint("DistanceY", -1, 1, 3, 2, Q("24.589659 mm")),
    Sketcher.Constraint("DistanceX", -1, 1, 7, 2, Q("11.93078 mm")),
    Sketcher.Constraint("DistanceY", -1, 1, 9, 2, Q("16.909622 mm")),
    Sketcher.Constraint("DistanceY", -1, 1, 13, 2, Q("7.394221 mm")),
])
pad1 = body.newObject("PartDesign::Pad", "Pad")
pad1.Profile = sketch4
pad1.Length = 16
pad1.Midplane = True

doc.recompute()
